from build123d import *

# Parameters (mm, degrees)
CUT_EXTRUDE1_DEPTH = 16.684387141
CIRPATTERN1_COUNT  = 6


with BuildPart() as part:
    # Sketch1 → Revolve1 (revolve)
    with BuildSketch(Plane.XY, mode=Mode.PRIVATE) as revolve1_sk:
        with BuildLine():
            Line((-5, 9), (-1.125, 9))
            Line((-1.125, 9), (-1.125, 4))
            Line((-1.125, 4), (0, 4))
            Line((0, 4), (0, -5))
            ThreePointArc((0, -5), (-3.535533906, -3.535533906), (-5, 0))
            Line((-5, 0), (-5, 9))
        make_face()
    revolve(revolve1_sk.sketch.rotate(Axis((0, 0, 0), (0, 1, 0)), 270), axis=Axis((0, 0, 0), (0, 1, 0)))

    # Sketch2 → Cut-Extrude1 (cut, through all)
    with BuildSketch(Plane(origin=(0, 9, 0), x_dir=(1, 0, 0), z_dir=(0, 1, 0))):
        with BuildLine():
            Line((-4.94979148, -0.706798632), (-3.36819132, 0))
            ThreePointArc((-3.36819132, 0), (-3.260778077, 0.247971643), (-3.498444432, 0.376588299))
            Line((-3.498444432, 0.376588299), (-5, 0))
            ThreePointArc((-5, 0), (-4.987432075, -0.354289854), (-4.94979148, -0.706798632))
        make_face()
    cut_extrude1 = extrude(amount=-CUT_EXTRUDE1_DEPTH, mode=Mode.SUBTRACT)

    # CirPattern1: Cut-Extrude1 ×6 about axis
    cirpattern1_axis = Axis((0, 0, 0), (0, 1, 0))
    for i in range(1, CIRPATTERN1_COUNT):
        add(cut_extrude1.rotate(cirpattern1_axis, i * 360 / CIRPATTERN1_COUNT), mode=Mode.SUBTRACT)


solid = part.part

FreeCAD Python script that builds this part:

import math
import FreeCAD as App
import Part
import Sketcher

V = App.Vector

doc = App.newDocument("Part")
body = doc.addObject("PartDesign::Body", "Body")

# Sketch on XY plane
sketch1 = body.newObject("Sketcher::SketchObject", "Sketch")
sketch1.AttachmentSupport = (doc.getObject("XY_Plane"), [""])
sketch1.MapMode = "FlatFace"
sketch1.addGeometry([
    Part.LineSegment(V(-1.125, 9, 0), V(-5, 9, 0)),  # 0
    Part.LineSegment(V(-5, 9, 0), V(-5, 0, 0)),  # 1
    Part.ArcOfCircle(Part.Circle(V(0, 0, 0), V(0, 0, 1), 5), math.radians(180), math.radians(270)),  # 2
    Part.LineSegment(V(0, -5, 0), V(0, 4, 0)),  # 3
    Part.LineSegment(V(0, 4, 0), V(-1.125, 4, 0)),  # 4
    Part.LineSegment(V(-1.125, 4, 0), V(-1.125, 9, 0)),  # 5
], False)
sketch1.addConstraint([
    Sketcher.Constraint("Coincident", 0, 2, 1, 1),
    Sketcher.Constraint("Tangent", 1, 2, 2, 1),
    Sketcher.Constraint("Coincident", 2, 2, 3, 1),
    Sketcher.Constraint("Coincident", 3, 2, 4, 1),
    Sketcher.Constraint("Coincident", 4, 2, 5, 1),
    Sketcher.Constraint("Coincident", 5, 2, 0, 1),
    Sketcher.Constraint("Horizontal", 0),
    Sketcher.Constraint("Vertical", 1),
    Sketcher.Constraint("Vertical", 3),
    Sketcher.Constraint("Horizontal", 4),
    Sketcher.Constraint("Vertical", 5),
    Sketcher.Constraint("Coincident", 2, 3, -1, 1),
    Sketcher.Constraint("PointOnObject", 2, 2, -2),
    Sketcher.Constraint("Equal", 1, 3),
    Sketcher.Constraint("Radius", 2, 5.0),
    Sketcher.Constraint("DistanceY", 1, 2, 1, 1, 9.0),
    Sketcher.Constraint("DistanceX", 0, 2, 0, 1, 3.875),
])
revolution = body.newObject("PartDesign::Revolution", "Revolution")
revolution.Profile = sketch1
revolution.ReferenceAxis = (sketch1, ["V_Axis"])
revolution.Angle = 360

# Sketch on XZ plane
sketch2 = body.newObject("Sketcher::SketchObject", "Sketch001")
sketch2.AttachmentSupport = (doc.getObject("XZ_Plane"), [""])
sketch2.MapMode = "FlatFace"
sketch2.AttachmentOffset = App.Placement(V(0, 0, -9), App.Rotation())
sketch2.addGeometry([
    Part.LineSegment(V(-4.949791, 0.706799, 0), V(-3.368191, 0, 0)),
    Part.ArcOfCircle(Part.Circle(V(-3.449791, -0.182596, 0), V(0, 0, 1), 0.2), math.radians(-104.07931), math.radians(65.92069)),
    Part.LineSegment(V(-3.498444, -0.376588, 0), V(-5, 0, 0)),
    Part.ArcOfCircle(Part.Circle(V(0, 0, 0), V(0, 0, 1), 5), math.radians(171.873465), math.radians(180)),
], False)
sketch2.addConstraint([
    Sketcher.Constraint("Tangent", 0, 2, 1, 2),
    Sketcher.Constraint("Tangent", 1, 1, 2, 1),
    Sketcher.Constraint("Coincident", 2, 2, 3, 2),
    Sketcher.Constraint("Coincident", 3, 1, 0, 1),
    Sketcher.Constraint("Coincident", 3, 3, -1, 1),
    Sketcher.Constraint("PointOnObject", 0, 2, -1),
    Sketcher.Constraint("PointOnObject", 2, 2, -1),
    Sketcher.Constraint("Radius", 3, 5.0),
    Sketcher.Constraint("Radius", 1, 0.2),
    Sketcher.Constraint("DistanceX", 3, 1, 1, 3, 1.5),
    Sketcher.Constraint("DistanceY", -1, 1, 3, 1, 0.706799),
])
pocket1 = body.newObject("PartDesign::Pocket", "Pocket")
pocket1.Profile = sketch2
pocket1.Type = "ThroughAll"
pocket1.Reversed = True
doc.recompute()

polarpattern = body.newObject("PartDesign::PolarPattern", "PolarPattern")
polarpattern.Originals = [pocket1]
polarpattern.Axis = (doc.getObject("Y_Axis"), [""])
polarpattern.Angle = 360
polarpattern.Occurrences = 6
body.Tip = polarpattern

doc.recompute()
